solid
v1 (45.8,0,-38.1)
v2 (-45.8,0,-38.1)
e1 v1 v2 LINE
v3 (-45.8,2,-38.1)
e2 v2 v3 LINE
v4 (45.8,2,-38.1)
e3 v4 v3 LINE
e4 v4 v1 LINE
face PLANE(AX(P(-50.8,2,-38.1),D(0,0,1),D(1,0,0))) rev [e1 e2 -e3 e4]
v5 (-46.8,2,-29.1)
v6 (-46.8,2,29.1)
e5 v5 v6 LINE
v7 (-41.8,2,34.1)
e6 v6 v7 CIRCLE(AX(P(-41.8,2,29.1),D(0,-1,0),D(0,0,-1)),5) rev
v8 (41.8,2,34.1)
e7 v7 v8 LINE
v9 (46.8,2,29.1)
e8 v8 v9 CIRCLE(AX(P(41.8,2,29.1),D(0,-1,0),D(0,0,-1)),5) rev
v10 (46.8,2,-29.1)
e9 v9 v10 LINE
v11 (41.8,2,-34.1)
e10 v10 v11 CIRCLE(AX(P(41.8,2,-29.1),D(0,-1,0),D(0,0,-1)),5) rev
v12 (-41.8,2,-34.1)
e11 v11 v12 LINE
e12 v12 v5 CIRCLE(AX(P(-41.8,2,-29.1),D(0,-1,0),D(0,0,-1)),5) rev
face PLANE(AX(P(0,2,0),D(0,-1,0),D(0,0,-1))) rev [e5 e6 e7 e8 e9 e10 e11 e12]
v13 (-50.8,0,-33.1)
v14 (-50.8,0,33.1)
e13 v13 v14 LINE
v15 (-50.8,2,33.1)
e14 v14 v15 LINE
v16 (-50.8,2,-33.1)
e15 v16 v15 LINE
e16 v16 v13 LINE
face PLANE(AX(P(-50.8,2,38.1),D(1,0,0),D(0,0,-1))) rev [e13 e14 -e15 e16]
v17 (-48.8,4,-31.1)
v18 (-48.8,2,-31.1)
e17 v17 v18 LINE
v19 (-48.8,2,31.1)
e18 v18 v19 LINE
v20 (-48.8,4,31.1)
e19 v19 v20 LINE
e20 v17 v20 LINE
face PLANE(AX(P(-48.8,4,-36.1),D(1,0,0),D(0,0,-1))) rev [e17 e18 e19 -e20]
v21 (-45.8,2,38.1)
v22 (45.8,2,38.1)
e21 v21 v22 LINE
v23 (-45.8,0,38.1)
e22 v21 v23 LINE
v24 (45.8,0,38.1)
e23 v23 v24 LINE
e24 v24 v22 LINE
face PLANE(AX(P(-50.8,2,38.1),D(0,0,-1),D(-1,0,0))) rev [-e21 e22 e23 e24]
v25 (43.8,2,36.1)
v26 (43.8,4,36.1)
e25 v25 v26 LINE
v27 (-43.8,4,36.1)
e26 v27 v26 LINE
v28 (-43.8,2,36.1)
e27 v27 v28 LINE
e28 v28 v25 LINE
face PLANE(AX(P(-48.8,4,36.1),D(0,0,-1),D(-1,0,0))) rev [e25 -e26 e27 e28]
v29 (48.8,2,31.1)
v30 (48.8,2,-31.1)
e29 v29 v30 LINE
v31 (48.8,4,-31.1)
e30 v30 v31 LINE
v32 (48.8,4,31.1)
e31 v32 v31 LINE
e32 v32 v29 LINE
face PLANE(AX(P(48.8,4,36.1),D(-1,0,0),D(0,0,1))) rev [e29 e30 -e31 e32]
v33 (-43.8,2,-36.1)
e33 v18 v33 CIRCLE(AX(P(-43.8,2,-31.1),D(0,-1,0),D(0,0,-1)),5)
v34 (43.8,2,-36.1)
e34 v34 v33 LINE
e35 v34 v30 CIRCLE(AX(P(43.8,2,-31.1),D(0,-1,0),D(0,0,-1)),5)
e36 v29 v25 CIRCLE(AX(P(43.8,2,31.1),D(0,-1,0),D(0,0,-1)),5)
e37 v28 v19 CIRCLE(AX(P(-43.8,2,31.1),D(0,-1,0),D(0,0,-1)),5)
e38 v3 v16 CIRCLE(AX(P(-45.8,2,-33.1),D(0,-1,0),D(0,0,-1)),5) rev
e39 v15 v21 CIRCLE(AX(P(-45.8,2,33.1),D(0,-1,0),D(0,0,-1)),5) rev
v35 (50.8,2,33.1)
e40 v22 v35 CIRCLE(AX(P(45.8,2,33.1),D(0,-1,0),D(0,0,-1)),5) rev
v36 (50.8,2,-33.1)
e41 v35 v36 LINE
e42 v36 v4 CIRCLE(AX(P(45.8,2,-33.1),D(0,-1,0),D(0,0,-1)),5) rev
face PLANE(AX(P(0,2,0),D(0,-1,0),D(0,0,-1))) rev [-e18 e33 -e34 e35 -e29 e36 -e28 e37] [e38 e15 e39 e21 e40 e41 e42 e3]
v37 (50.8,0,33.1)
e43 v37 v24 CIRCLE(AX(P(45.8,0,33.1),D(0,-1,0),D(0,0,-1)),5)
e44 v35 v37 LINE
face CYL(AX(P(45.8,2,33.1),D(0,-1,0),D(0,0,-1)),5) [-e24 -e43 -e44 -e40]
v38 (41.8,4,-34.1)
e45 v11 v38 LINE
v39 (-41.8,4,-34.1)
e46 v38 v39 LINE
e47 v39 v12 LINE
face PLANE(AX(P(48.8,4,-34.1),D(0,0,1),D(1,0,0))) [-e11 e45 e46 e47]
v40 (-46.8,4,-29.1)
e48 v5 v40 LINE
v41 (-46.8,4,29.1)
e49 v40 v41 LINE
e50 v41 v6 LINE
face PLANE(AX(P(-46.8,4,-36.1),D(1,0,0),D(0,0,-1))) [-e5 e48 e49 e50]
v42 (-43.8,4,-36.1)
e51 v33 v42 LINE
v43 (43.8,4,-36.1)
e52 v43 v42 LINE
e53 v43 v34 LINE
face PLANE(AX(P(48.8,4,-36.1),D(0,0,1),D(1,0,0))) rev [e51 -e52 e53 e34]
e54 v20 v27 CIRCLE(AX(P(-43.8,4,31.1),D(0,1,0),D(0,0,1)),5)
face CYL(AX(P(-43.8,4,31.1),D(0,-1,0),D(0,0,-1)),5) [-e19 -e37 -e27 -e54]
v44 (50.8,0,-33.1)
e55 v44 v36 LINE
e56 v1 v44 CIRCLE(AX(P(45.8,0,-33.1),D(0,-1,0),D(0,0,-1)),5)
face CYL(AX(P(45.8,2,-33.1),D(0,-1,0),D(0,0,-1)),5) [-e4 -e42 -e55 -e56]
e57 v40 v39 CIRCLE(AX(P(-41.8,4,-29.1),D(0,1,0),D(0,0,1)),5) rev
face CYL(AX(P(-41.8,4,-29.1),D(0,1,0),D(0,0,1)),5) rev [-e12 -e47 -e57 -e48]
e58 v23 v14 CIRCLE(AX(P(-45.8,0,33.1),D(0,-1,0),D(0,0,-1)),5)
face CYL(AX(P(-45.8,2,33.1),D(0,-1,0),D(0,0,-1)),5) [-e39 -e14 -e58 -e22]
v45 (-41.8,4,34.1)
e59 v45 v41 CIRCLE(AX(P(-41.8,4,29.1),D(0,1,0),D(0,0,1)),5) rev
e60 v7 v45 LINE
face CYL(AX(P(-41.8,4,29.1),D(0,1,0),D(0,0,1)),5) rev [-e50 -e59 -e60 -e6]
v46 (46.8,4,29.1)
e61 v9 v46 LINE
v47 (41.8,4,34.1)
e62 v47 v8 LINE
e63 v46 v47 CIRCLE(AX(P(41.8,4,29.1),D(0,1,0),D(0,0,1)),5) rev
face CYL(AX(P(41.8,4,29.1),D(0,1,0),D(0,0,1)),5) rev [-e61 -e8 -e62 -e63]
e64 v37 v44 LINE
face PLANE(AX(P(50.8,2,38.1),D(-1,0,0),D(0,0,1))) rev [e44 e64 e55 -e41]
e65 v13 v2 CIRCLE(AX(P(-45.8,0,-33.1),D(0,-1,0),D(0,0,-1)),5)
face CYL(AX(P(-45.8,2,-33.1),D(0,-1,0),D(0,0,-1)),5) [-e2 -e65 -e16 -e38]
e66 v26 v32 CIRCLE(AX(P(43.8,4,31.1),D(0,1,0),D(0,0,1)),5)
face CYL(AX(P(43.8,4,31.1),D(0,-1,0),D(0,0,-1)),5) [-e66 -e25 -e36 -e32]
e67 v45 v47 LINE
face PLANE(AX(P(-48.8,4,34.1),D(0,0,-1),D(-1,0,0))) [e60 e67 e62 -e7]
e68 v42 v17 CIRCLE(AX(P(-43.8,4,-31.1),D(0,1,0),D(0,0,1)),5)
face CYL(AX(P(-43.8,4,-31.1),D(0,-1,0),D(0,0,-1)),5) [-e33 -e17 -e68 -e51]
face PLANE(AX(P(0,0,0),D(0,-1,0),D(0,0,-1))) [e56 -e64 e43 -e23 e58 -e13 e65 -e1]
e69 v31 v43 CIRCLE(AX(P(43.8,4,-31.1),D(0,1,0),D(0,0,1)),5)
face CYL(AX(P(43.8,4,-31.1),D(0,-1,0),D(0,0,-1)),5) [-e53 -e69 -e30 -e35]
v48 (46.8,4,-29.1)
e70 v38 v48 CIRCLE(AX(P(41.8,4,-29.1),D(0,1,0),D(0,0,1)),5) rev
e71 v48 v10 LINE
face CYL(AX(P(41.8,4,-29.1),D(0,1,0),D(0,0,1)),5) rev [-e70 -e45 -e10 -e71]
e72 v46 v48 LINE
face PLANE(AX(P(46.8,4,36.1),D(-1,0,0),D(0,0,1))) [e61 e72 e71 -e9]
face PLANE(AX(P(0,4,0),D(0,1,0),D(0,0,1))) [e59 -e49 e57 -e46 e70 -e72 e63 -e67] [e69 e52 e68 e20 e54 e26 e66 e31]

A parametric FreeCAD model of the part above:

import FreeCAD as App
import Part
import Sketcher
from FreeCAD import Vector
Q = App.Units.Quantity


def edges_at(feature, points):
    """Names of the edges that pass closest to the given points."""
    edges = feature.Shape.Edges
    near = lambda p: min(range(len(edges)), key=lambda i: edges[i].distToShape(Part.Vertex(*p))[0])
    return sorted({f"Edge{near(p) + 1}" for p in points})


def add_polygon(sketch, points):
    """Adds a closed chain of lines whose ends are joined by coincident constraints."""
    first, n = sketch.GeometryCount, len(points)
    for a, b in zip(points, points[1:] + points[:1]):
        sketch.addGeometry(Part.LineSegment(App.Vector(*a, 0), App.Vector(*b, 0)), False)
    for i in range(n):
        sketch.addConstraint(Sketcher.Constraint("Coincident", first + i, 2, first + (i + 1) % n, 1))

doc = App.newDocument("Part")
body = doc.addObject("PartDesign::Body", "Body")

# Sketch on XZ plane
sketch1 = body.newObject("Sketcher::SketchObject", "Sketch")
sketch1.AttachmentSupport = (doc.getObject("XZ_Plane"), [""])
sketch1.MapMode = "FlatFace"
add_polygon(sketch1, [(-50.8, -38.1), (-50.8, 38.1), (50.8, 38.1), (50.8, -38.1)])  # lines 0-3
sketch1.addConstraint(Sketcher.Constraint("Vertical", 0))
sketch1.addConstraint(Sketcher.Constraint("Horizontal", 1))
sketch1.addConstraint(Sketcher.Constraint("Vertical", 2))
sketch1.addConstraint(Sketcher.Constraint("Horizontal", 3))
sketch1.addConstraint(Sketcher.Constraint("Symmetric", 0, 2, 2, 2, -1, 1))
sketch1.addConstraint(Sketcher.Constraint("DistanceX", 1, 1, 1, 2, Q("101.6 mm")))
sketch1.addConstraint(Sketcher.Constraint("DistanceY", 0, 1, 0, 2, Q("76.2 mm")))
pad1 = body.newObject("PartDesign::Pad", "Pad")
pad1.Profile = sketch1
pad1.Length = 2
pad1.Reversed = True

# Sketch on XZ plane
sketch2 = body.newObject("Sketcher::SketchObject", "Sketch001")
sketch2.AttachmentSupport = (doc.getObject("XZ_Plane"), [""])
sketch2.MapMode = "FlatFace"
sketch2.AttachmentOffset = App.Placement(Vector(0, 0, -2), App.Rotation())
add_polygon(sketch2, [(-48.8, -36.1), (-48.8, 36.1), (48.8, 36.1), (48.8, -36.1)])  # lines 0-3
add_polygon(sketch2, [(46.8, 34.1), (-46.8, 34.1), (-46.8, -34.1), (46.8, -34.1)])  # lines 4-7
sketch2.addConstraint(Sketcher.Constraint("Vertical", 0))
sketch2.addConstraint(Sketcher.Constraint("Horizontal", 1))
sketch2.addConstraint(Sketcher.Constraint("Vertical", 2))
sketch2.addConstraint(Sketcher.Constraint("Horizontal", 3))
sketch2.addConstraint(Sketcher.Constraint("Horizontal", 4))
sketch2.addConstraint(Sketcher.Constraint("Vertical", 5))
sketch2.addConstraint(Sketcher.Constraint("Horizontal", 6))
sketch2.addConstraint(Sketcher.Constraint("Vertical", 7))
sketch2.addConstraint(Sketcher.Constraint("Symmetric", 0, 2, 2, 2, -1, 1))
sketch2.addConstraint(Sketcher.Constraint("Symmetric", 4, 2, 6, 2, -1, 1))
sketch2.addConstraint(Sketcher.Constraint("DistanceX", 1, 1, 1, 2, Q("97.6 mm")))
sketch2.addConstraint(Sketcher.Constraint("DistanceX", 4, 2, 4, 1, Q("93.6 mm")))
sketch2.addConstraint(Sketcher.Constraint("DistanceY", 0, 1, 0, 2, Q("72.2 mm")))
sketch2.addConstraint(Sketcher.Constraint("DistanceY", 5, 2, 5, 1, Q("68.2 mm")))
pad2 = body.newObject("PartDesign::Pad", "Pad001")
pad2.Profile = sketch2
pad2.Length = 2
pad2.Reversed = True
doc.recompute()

fillet = body.newObject("PartDesign::Fillet", "Fillet")
fillet.Base = (pad2, edges_at(pad2, [
    (50.8, 1, 38.1),
    (-50.8, 1, 38.1),
    (-50.8, 1, -38.1),
    (50.8, 1, -38.1),
]))
fillet.Radius = 5
doc.recompute()

fillet2 = body.newObject("PartDesign::Fillet", "Fillet001")
fillet2.Base = (fillet, edges_at(fillet, [
    (48.8, 3, -36.1),
    (-48.8, 3, -36.1),
    (-48.8, 3, 36.1),
    (48.8, 3, 36.1),
    (-46.8, 3, -34.1),
    (-46.8, 3, 34.1),
    (46.8, 3, 34.1),
    (46.8, 3, -34.1),
]))
fillet2.Radius = 5

doc.recompute()
